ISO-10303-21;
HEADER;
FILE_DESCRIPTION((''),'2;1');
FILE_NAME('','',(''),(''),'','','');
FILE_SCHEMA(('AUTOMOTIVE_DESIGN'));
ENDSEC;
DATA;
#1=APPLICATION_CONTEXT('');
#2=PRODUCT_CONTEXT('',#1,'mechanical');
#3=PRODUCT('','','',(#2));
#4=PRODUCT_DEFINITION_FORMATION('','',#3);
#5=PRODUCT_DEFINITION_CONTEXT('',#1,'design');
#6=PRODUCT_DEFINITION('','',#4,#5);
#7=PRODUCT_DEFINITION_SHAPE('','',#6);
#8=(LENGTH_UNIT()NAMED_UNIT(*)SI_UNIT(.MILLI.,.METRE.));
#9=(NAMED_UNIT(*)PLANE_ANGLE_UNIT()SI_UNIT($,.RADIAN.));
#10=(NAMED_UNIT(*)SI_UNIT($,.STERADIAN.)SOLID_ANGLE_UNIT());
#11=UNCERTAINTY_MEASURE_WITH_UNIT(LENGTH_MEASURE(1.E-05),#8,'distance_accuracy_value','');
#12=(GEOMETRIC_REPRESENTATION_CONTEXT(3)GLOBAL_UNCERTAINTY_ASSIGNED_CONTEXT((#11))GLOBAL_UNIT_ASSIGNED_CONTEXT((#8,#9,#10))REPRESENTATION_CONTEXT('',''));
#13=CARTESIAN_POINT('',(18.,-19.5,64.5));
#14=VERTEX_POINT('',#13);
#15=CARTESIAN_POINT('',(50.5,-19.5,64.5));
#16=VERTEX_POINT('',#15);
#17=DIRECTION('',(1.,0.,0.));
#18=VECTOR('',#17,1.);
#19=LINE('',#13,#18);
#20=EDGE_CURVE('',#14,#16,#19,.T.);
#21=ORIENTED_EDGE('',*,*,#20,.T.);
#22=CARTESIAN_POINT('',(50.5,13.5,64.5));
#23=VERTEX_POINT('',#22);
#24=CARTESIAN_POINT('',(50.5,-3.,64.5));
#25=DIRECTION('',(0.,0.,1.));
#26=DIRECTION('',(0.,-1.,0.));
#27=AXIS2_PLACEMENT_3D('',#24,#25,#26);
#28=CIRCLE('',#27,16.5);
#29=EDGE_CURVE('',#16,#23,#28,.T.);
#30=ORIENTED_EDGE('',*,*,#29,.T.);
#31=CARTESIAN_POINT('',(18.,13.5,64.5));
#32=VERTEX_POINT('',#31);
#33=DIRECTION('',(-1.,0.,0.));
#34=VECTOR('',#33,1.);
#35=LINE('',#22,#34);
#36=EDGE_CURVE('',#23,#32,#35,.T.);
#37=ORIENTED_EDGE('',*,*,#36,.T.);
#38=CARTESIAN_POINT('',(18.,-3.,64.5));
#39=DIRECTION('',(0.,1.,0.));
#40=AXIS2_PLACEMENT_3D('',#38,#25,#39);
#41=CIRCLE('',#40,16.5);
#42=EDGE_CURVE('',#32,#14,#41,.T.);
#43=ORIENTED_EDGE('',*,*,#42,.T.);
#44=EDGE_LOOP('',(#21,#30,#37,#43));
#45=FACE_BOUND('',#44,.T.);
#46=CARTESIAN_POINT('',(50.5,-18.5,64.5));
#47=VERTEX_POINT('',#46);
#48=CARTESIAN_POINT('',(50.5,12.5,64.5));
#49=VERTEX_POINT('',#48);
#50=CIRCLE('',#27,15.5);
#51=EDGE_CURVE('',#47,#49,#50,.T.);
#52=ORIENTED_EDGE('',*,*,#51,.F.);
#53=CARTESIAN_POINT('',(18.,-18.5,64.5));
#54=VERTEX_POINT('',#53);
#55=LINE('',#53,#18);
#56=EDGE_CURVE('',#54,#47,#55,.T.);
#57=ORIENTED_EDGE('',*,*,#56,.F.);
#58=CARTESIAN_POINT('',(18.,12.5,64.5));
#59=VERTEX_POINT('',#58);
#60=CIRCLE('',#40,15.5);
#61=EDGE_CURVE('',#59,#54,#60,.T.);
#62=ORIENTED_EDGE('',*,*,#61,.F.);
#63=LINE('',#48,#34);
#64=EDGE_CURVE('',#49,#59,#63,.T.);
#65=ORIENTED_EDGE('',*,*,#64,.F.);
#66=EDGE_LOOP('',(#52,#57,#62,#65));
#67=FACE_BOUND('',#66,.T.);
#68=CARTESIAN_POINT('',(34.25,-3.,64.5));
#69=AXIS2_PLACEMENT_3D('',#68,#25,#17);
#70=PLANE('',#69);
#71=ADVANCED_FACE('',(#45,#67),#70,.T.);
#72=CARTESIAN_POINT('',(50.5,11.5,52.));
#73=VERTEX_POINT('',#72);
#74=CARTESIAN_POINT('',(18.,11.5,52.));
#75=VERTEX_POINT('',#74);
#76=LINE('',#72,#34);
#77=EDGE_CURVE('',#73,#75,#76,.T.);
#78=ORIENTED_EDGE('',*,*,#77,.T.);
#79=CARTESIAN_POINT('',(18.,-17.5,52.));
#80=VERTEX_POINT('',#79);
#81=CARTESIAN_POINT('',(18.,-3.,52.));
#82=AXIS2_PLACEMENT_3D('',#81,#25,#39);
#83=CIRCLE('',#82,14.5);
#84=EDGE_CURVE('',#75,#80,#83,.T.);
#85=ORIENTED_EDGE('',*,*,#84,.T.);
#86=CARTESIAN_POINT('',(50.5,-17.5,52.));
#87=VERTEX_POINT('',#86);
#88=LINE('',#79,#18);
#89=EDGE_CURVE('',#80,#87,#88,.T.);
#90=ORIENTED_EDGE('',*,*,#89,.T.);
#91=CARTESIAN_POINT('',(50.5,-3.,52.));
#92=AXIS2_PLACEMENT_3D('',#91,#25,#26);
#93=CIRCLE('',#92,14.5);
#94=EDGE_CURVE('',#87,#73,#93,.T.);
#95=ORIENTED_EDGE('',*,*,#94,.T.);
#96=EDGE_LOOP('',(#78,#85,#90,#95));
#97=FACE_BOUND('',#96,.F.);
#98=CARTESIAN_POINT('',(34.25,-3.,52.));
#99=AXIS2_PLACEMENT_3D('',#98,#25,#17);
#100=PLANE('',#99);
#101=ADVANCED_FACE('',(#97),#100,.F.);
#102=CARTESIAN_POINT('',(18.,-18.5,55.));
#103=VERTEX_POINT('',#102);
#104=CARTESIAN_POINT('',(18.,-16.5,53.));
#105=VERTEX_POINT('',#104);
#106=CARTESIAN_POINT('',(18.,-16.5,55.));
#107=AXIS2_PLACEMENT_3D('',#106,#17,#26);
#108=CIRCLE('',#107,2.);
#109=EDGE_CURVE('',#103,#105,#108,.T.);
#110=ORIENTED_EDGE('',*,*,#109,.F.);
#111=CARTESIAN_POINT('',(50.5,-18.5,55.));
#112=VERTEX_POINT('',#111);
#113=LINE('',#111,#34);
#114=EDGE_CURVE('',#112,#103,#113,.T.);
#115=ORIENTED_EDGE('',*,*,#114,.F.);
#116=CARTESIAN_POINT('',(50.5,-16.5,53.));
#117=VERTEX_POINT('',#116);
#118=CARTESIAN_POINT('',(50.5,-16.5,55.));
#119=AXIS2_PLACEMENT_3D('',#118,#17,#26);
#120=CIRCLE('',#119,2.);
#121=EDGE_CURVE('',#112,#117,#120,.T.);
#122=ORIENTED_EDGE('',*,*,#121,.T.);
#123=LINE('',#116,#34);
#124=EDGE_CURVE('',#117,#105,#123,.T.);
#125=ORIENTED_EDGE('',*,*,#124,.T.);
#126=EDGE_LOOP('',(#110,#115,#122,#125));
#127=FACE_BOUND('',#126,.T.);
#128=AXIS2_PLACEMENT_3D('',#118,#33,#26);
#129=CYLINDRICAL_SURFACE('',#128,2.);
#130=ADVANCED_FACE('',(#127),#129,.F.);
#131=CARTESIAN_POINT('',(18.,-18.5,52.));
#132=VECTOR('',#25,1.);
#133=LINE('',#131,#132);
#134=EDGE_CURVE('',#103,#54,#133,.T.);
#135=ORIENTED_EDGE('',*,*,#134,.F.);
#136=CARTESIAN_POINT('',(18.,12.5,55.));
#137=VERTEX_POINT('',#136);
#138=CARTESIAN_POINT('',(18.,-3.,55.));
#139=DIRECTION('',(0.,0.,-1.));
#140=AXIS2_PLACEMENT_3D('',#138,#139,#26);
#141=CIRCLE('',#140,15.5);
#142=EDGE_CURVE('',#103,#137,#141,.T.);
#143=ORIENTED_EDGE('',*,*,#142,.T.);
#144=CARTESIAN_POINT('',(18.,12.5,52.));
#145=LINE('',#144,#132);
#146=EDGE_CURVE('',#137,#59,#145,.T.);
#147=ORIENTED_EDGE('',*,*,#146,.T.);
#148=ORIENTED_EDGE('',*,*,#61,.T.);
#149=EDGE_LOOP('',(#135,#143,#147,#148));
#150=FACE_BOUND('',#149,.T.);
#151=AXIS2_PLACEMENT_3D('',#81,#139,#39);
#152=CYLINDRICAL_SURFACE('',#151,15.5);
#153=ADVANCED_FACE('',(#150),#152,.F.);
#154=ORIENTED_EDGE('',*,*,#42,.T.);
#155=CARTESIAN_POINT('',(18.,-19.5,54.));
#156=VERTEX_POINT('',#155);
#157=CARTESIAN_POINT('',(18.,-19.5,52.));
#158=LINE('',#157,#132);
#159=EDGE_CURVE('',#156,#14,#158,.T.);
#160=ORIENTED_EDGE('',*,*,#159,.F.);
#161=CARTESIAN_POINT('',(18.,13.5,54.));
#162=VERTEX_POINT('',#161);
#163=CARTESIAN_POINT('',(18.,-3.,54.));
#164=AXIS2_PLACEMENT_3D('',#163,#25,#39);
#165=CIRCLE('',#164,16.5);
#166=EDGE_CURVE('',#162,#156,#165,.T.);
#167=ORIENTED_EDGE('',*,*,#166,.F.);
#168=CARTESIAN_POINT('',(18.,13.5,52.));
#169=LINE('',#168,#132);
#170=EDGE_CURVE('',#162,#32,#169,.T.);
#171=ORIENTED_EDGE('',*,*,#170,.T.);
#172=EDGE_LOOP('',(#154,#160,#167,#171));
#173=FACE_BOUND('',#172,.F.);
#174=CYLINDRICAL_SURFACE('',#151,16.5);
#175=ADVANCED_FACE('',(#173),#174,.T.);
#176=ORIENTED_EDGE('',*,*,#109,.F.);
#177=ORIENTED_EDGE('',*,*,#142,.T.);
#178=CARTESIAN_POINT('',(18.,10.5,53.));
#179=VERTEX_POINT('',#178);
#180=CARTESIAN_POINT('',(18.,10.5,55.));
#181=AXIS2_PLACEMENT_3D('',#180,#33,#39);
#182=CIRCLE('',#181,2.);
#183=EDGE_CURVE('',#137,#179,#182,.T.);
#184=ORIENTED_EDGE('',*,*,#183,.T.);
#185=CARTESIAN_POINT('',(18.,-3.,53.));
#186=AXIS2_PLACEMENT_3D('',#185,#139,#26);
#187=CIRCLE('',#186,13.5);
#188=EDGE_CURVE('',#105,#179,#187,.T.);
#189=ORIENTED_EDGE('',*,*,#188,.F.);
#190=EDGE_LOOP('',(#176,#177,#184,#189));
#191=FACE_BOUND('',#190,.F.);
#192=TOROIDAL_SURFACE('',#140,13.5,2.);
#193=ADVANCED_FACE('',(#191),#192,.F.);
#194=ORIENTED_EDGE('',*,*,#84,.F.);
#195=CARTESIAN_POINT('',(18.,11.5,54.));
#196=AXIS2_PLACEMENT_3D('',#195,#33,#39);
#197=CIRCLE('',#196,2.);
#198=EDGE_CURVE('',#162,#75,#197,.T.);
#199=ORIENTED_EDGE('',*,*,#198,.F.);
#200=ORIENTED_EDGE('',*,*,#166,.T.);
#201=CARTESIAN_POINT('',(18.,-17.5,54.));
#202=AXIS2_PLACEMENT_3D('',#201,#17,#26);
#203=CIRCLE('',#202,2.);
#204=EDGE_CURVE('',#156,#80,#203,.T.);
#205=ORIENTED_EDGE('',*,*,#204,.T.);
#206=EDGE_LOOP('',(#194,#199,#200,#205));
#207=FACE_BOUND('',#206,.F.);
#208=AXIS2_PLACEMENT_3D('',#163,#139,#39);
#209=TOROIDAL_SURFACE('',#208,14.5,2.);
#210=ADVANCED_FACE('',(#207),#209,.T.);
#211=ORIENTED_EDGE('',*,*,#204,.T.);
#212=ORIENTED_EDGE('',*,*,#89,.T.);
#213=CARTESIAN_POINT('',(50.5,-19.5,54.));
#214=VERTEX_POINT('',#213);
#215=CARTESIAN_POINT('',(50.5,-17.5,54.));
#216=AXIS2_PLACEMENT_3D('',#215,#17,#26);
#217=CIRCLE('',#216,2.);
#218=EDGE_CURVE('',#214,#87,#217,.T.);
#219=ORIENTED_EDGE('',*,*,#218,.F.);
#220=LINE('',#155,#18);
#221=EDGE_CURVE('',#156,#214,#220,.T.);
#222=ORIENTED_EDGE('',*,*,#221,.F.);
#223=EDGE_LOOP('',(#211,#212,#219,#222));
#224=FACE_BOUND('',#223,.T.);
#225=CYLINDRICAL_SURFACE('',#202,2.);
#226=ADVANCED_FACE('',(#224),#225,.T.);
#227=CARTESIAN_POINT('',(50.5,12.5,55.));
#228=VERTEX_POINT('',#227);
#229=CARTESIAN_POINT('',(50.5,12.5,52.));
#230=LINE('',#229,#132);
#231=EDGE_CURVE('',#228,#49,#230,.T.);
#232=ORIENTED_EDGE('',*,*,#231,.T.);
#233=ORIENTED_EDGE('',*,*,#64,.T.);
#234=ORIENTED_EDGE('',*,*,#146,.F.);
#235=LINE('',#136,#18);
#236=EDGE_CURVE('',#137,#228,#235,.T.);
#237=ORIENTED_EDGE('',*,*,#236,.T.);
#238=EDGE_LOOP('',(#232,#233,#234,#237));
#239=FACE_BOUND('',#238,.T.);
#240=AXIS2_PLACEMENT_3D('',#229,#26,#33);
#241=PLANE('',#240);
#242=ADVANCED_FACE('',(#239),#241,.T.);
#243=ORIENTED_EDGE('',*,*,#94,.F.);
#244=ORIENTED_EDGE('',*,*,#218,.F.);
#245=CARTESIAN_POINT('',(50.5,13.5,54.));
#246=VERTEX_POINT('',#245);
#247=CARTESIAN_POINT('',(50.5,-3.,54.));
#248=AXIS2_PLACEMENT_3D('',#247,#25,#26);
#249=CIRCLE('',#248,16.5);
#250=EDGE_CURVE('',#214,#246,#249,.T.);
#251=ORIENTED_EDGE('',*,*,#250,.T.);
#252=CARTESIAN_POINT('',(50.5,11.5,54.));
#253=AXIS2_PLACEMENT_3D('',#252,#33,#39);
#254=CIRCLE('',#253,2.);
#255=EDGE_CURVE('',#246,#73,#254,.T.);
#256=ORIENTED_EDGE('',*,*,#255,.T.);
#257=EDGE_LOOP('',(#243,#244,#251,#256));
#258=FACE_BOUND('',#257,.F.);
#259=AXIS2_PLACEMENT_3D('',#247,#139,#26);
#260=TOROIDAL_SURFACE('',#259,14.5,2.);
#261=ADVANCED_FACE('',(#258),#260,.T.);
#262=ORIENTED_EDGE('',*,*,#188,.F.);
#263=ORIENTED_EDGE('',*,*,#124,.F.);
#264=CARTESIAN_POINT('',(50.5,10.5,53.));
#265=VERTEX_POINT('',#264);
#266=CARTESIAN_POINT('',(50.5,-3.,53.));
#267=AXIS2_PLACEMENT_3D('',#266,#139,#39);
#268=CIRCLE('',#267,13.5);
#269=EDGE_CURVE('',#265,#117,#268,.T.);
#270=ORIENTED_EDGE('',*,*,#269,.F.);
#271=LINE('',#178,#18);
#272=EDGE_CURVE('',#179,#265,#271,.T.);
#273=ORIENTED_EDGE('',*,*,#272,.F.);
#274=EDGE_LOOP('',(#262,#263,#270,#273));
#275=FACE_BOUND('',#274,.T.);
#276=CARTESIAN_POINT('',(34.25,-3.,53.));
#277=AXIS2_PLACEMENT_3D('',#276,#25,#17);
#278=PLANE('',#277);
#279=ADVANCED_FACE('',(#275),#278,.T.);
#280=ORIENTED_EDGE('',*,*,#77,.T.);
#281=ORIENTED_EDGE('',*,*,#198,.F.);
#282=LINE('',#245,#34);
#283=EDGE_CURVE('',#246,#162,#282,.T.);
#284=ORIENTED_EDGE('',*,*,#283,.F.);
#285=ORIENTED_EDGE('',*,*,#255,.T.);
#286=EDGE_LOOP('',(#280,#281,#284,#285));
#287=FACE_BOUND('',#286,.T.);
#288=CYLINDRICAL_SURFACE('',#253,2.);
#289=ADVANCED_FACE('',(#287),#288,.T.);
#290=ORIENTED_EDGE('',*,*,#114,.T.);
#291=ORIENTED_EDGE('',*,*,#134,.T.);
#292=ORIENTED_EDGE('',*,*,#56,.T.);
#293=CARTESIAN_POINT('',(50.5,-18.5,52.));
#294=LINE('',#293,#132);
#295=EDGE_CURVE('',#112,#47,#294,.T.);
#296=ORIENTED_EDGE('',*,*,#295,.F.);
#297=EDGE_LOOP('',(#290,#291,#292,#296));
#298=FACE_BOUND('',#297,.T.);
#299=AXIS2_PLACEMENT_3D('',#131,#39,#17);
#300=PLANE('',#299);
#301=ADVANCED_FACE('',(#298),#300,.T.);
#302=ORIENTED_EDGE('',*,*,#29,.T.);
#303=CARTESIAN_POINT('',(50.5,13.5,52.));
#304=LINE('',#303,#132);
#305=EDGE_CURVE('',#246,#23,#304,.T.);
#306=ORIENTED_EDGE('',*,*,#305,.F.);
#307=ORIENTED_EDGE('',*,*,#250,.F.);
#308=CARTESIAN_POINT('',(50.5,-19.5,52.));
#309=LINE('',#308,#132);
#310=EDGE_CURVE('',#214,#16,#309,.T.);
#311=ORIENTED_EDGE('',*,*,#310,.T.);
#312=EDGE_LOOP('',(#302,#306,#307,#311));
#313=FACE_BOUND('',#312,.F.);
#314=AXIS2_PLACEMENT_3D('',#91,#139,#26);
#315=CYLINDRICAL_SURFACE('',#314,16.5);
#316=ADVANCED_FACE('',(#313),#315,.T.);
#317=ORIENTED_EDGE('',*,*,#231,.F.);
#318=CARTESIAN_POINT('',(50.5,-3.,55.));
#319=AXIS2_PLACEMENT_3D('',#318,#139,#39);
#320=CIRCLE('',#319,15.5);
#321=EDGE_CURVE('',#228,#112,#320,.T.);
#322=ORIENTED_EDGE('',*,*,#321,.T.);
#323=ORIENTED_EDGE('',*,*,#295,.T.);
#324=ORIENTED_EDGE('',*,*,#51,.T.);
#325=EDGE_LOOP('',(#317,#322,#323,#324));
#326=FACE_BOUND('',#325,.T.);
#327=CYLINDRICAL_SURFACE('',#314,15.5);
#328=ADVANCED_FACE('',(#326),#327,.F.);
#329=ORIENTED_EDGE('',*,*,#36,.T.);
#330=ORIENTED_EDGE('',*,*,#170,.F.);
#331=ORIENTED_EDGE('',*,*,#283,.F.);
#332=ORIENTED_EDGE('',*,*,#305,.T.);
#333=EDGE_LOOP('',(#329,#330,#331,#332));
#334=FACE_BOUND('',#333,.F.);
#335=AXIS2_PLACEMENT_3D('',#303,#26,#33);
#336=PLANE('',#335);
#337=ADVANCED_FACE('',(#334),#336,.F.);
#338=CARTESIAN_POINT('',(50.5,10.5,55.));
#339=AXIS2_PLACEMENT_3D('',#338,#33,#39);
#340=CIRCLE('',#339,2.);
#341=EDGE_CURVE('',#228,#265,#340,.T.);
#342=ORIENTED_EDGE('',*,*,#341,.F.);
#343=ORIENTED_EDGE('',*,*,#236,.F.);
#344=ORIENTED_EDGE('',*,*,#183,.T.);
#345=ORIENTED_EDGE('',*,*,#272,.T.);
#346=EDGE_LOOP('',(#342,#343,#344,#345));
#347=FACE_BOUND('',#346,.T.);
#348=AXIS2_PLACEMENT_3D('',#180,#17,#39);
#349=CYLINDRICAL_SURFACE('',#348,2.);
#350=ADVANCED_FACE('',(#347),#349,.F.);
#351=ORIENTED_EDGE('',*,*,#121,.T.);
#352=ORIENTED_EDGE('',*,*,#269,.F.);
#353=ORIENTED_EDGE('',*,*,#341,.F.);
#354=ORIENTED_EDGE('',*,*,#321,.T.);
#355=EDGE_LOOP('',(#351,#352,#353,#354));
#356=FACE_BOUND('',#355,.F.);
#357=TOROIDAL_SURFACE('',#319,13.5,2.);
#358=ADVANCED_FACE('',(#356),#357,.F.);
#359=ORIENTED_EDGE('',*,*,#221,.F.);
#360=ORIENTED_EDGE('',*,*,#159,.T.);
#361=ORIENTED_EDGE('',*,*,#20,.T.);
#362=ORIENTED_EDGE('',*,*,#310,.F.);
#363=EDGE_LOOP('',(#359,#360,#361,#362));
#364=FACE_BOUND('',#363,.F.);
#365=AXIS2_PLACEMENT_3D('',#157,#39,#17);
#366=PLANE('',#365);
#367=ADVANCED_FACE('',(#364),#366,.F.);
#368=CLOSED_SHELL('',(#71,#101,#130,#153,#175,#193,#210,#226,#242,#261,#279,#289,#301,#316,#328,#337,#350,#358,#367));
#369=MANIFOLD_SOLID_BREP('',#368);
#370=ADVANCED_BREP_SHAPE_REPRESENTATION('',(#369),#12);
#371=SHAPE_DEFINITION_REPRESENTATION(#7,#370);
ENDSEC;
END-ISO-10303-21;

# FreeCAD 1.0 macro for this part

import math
import FreeCAD as App
import Part
import Sketcher
from FreeCAD import Vector
Q = App.Units.Quantity


def edges_at(feature, points):
    """Names of the edges that pass closest to the given points."""
    edges = feature.Shape.Edges
    near = lambda p: min(range(len(edges)), key=lambda i: edges[i].distToShape(Part.Vertex(*p))[0])
    return sorted({f"Edge{near(p) + 1}" for p in points})


def faces_at(feature, points):
    """Names of the faces that lie closest to the given points."""
    faces = feature.Shape.Faces
    near = lambda p: min(range(len(faces)), key=lambda i: faces[i].distToShape(Part.Vertex(*p))[0])
    return sorted({f"Face{near(p) + 1}" for p in points})

doc = App.newDocument("Part")
body = doc.addObject("PartDesign::Body", "Body")

# Sketch on XY plane
sketch1 = body.newObject("Sketcher::SketchObject", "Sketch")
sketch1.AttachmentSupport = (doc.getObject("XY_Plane"), [""])
sketch1.MapMode = "FlatFace"
sketch1.addGeometry([
    Part.ArcOfCircle(Part.Circle(Vector(-83, 56, 0), Vector(0, 0, 1), 16), math.radians(90), math.radians(270)),
    Part.LineSegment(Vector(-83, 40, 0), Vector(-50, 40, 0)),
    Part.ArcOfCircle(Part.Circle(Vector(-50, 56, 0), Vector(0, 0, 1), 16), math.radians(-90), math.radians(90)),
    Part.LineSegment(Vector(-50, 72, 0), Vector(-83, 72, 0)),
], False)
sketch1.addConstraint([
    Sketcher.Constraint("Tangent", 0, 2, 1, 1),
    Sketcher.Constraint("Tangent", 1, 2, 2, 1),
    Sketcher.Constraint("Tangent", 2, 2, 3, 1),
    Sketcher.Constraint("Tangent", 3, 2, 0, 1),
    Sketcher.Constraint("Horizontal", 1),
    Sketcher.Constraint("Horizontal", 3),
    Sketcher.Constraint("Radius", 0, Q("16.5 mm")),
    Sketcher.Constraint("DistanceX", 1, 1, 1, 2, Q("32.5 mm")),
    Sketcher.Constraint("DistanceX", 0, 3, -1, 1, Q("83 mm")),
    Sketcher.Constraint("DistanceY", -1, 1, 0, 3, Q("56 mm")),
])
pad1 = body.newObject("PartDesign::Pad", "Pad")
pad1.Profile = sketch1
pad1.Length = 12.5
doc.recompute()

thickness = body.newObject("PartDesign::Thickness", "Thickness")
thickness.Base = (pad1, faces_at(pad1, [(-66.75, 56, 12.5)]))
thickness.Value = 1
thickness.Reversed = True
thickness.Join = "Arc"
doc.recompute()

fillet = body.newObject("PartDesign::Fillet", "Fillet")
fillet.Base = (thickness, edges_at(thickness, [
    (-98.5, 56, 1),
    (-66.75, 40.5, 1),
    (-35, 56, 1),
    (-66.75, 71.5, 1),
]))
fillet.Radius = 2
doc.recompute()

fillet2 = body.newObject("PartDesign::Fillet", "Fillet001")
fillet2.Base = (fillet, edges_at(fillet, [
    (-99.5, 56, 0),
    (-66.75, 39.5, 0),
    (-34, 56, 0),
    (-66.75, 72.5, 0),
]))
fillet2.Radius = 2
body2 = doc.addObject("PartDesign::Body", "Body001")
doc.recompute()

body.Placement = App.Placement(Vector(101, -59, 52), App.Rotation(Vector(0, 0, 1), 0))
boolean = body2.newObject("PartDesign::Boolean", "Boolean")
boolean.Type = "Fuse"
boolean.addObjects([body])

doc.recompute()
